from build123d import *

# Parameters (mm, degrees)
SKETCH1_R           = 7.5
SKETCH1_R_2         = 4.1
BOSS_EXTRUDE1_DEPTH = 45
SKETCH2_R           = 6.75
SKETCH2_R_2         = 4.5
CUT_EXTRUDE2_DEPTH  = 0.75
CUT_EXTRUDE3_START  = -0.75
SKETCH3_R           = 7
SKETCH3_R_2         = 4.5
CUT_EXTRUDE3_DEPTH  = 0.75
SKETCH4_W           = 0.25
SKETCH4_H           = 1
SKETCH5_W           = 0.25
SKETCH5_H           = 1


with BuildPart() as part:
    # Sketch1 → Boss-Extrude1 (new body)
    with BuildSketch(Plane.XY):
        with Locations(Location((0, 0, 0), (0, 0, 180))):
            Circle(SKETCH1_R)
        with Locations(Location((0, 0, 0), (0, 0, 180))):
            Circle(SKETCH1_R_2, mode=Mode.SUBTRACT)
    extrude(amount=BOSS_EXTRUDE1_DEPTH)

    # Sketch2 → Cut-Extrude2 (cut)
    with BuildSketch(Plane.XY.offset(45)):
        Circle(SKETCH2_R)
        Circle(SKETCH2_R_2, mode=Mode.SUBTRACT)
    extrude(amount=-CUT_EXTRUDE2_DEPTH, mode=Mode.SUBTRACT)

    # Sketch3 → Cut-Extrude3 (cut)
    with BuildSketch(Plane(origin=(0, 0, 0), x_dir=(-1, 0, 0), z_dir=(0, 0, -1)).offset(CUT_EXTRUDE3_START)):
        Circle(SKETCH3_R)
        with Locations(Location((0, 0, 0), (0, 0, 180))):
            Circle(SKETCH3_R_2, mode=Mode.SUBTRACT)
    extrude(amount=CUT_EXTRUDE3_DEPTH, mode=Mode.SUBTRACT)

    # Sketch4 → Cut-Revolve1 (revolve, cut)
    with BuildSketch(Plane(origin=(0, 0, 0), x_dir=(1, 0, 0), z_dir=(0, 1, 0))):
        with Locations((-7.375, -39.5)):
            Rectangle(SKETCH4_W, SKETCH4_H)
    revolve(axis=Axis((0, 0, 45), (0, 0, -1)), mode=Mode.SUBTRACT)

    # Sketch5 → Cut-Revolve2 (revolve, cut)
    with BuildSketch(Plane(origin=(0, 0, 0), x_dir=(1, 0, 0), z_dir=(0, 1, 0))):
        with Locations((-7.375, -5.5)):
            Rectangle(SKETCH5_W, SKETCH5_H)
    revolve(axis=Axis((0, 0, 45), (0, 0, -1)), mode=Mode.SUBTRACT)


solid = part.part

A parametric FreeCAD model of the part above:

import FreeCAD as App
import Part
import Sketcher
from FreeCAD import Vector

doc = App.newDocument("Part")
body = doc.addObject("PartDesign::Body", "Body")

# Sketch on XY plane
sketch1 = doc.addObject("Sketcher::SketchObject", "Sketch")
body.addObject(sketch1)
sketch1.AttachmentSupport = (doc.XY_Plane, [""])
sketch1.MapMode = "FlatFace"
sketch1.addGeometry([
    Part.Circle(Vector(0, 0, 0), Vector(0, 0, 1), 7.5),
    Part.Circle(Vector(0, 0, 0), Vector(0, 0, 1), 4.1),
], False)
sketch1.addConstraint([
    Sketcher.Constraint("Coincident", 0, 3, -1, 1),
    Sketcher.Constraint("Coincident", 1, 3, -1, 1),
    Sketcher.Constraint("Diameter", 0, 15.0),
    Sketcher.Constraint("Diameter", 1, 8.2),
])
pad1 = doc.addObject("PartDesign::Pad", "Pad")
body.addObject(pad1)
pad1.Profile = sketch1
pad1.Length = 45

# Sketch on XY plane
sketch2 = doc.addObject("Sketcher::SketchObject", "Sketch001")
body.addObject(sketch2)
sketch2.AttachmentSupport = (doc.XY_Plane, [""])
sketch2.MapMode = "FlatFace"
sketch2.AttachmentOffset = App.Placement(Vector(0, 0, 45), App.Rotation())
sketch2.addGeometry([
    Part.Circle(Vector(0, 0, 0), Vector(0, 0, 1), 6.8),
    Part.Circle(Vector(0, 0, 0), Vector(0, 0, 1), 4.5),
], False)
sketch2.addConstraint([
    Sketcher.Constraint("Coincident", 0, 3, -1, 1),
    Sketcher.Constraint("Coincident", 1, 3, -1, 1),
    Sketcher.Constraint("Diameter", 1, 9.0),
    Sketcher.Constraint("Diameter", 0, 13.5),
])
pocket1 = doc.addObject("PartDesign::Pocket", "Pocket")
body.addObject(pocket1)
pocket1.Profile = sketch2
pocket1.Length = 0.75

# Sketch on XY plane
sketch3 = doc.addObject("Sketcher::SketchObject", "Sketch002")
body.addObject(sketch3)
sketch3.AttachmentSupport = (doc.XY_Plane, [""])
sketch3.MapMode = "FlatFace"
sketch3.AttachmentOffset = App.Placement(Vector(0, 0, 0.75), App.Rotation())
sketch3.addGeometry([
    Part.Circle(Vector(0, 0, 0), Vector(0, 0, 1), 7),
    Part.Circle(Vector(0, 0, 0), Vector(0, 0, 1), 4.5),
], False)
sketch3.addConstraint([
    Sketcher.Constraint("Coincident", 0, 3, -1, 1),
    Sketcher.Constraint("Coincident", 1, 3, -1, 1),
    Sketcher.Constraint("Diameter", 0, 14.0),
    Sketcher.Constraint("Diameter", 1, 9.0),
])
pocket2 = doc.addObject("PartDesign::Pocket", "Pocket001")
body.addObject(pocket2)
pocket2.Profile = sketch3
pocket2.Length = 0.75

# Sketch on XZ plane
sketch4 = doc.addObject("Sketcher::SketchObject", "Sketch003")
body.addObject(sketch4)
sketch4.AttachmentSupport = (doc.XZ_Plane, [""])
sketch4.MapMode = "FlatFace"
sketch4.addGeometry([
    Part.LineSegment(Vector(-7.5, 39, 0), Vector(-7.5, 40, 0)),
    Part.LineSegment(Vector(-7.5, 40, 0), Vector(-7.25, 40, 0)),
    Part.LineSegment(Vector(-7.25, 40, 0), Vector(-7.25, 39, 0)),
    Part.LineSegment(Vector(-7.25, 39, 0), Vector(-7.5, 39, 0)),
], False)
sketch4.addConstraint([
    Sketcher.Constraint("Coincident", 0, 2, 1, 1),
    Sketcher.Constraint("Coincident", 1, 2, 2, 1),
    Sketcher.Constraint("Coincident", 2, 2, 3, 1),
    Sketcher.Constraint("Coincident", 3, 2, 0, 1),
    Sketcher.Constraint("Vertical", 0),
    Sketcher.Constraint("Horizontal", 1),
    Sketcher.Constraint("Vertical", 2),
    Sketcher.Constraint("Horizontal", 3),
    Sketcher.Constraint("DistanceY", 0, 1, 0, 2, 1.0),
    Sketcher.Constraint("DistanceY", -1, 1, 0, 2, 40.0),
    Sketcher.Constraint("DistanceX", 1, 1, 1, 2, 0.25),
    Sketcher.Constraint("DistanceX", 0, 2, -1, 1, 7.5),
])
groove = doc.addObject("PartDesign::Groove", "Groove")
body.addObject(groove)
groove.Profile = sketch4
groove.ReferenceAxis = (sketch4, ["V_Axis"])
groove.Angle = 360

# Sketch on XZ plane
sketch5 = doc.addObject("Sketcher::SketchObject", "Sketch004")
body.addObject(sketch5)
sketch5.AttachmentSupport = (doc.XZ_Plane, [""])
sketch5.MapMode = "FlatFace"
sketch5.addGeometry([
    Part.LineSegment(Vector(-7.5, 5, 0), Vector(-7.5, 6, 0)),
    Part.LineSegment(Vector(-7.5, 6, 0), Vector(-7.25, 6, 0)),
    Part.LineSegment(Vector(-7.25, 6, 0), Vector(-7.25, 5, 0)),
    Part.LineSegment(Vector(-7.25, 5, 0), Vector(-7.5, 5, 0)),
], False)
sketch5.addConstraint([
    Sketcher.Constraint("Coincident", 0, 2, 1, 1),
    Sketcher.Constraint("Coincident", 1, 2, 2, 1),
    Sketcher.Constraint("Coincident", 2, 2, 3, 1),
    Sketcher.Constraint("Coincident", 3, 2, 0, 1),
    Sketcher.Constraint("Vertical", 0),
    Sketcher.Constraint("Horizontal", 1),
    Sketcher.Constraint("Vertical", 2),
    Sketcher.Constraint("Horizontal", 3),
    Sketcher.Constraint("DistanceY", 0, 1, 0, 2, 1.0),
    Sketcher.Constraint("DistanceY", -1, 1, 0, 2, 6.0),
    Sketcher.Constraint("DistanceX", 1, 1, 1, 2, 0.25),
    Sketcher.Constraint("DistanceX", 0, 2, -1, 1, 7.5),
])
groove2 = doc.addObject("PartDesign::Groove", "Groove001")
body.addObject(groove2)
groove2.Profile = sketch5
groove2.ReferenceAxis = (sketch5, ["V_Axis"])
groove2.Angle = 360

doc.recompute()
